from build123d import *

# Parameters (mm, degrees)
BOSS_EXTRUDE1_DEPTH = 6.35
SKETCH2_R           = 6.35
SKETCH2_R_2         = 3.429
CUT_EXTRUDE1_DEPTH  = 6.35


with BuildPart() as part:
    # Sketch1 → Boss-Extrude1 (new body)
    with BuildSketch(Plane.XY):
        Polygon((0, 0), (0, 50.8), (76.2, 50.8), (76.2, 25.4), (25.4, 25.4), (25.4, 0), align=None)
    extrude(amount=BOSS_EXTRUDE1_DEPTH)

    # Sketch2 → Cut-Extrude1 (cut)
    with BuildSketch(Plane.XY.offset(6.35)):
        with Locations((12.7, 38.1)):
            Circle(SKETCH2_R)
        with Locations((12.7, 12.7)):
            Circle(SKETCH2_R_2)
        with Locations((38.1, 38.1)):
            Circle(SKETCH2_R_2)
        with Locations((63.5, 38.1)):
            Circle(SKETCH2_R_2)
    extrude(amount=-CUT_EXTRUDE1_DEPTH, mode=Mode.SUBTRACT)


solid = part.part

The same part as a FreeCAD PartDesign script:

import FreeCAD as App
import Part
import Sketcher
Q = App.Units.Quantity


def add_polygon(sketch, points):
    """Adds a closed chain of lines whose ends are joined by coincident constraints."""
    first, n = sketch.GeometryCount, len(points)
    for a, b in zip(points, points[1:] + points[:1]):
        sketch.addGeometry(Part.LineSegment(App.Vector(*a, 0), App.Vector(*b, 0)), False)
    for i in range(n):
        sketch.addConstraint(Sketcher.Constraint("Coincident", first + i, 2, first + (i + 1) % n, 1))

doc = App.newDocument("Part")
body = doc.addObject("PartDesign::Body", "Body")

sketch1 = body.newObject("Sketcher::SketchObject", "Sketch")
sketch1.AttachmentSupport = (doc.getObject("XY_Plane"), [""])
sketch1.MapMode = "FlatFace"
add_polygon(sketch1, [(0, 51), (0, 0), (25, 0), (25, 25), (76, 25), (76, 51)])
sketch1.addConstraint([
    Sketcher.Constraint("Vertical", 0),
    Sketcher.Constraint("Horizontal", 1),
    Sketcher.Constraint("Vertical", 2),
    Sketcher.Constraint("Horizontal", 3),
    Sketcher.Constraint("Vertical", 4),
    Sketcher.Constraint("Horizontal", 5),
    Sketcher.Constraint("Coincident", 0, 2, -1, 1),
    Sketcher.Constraint("Equal", 3, 0),
    Sketcher.Constraint("Equal", 1, 2),
    Sketcher.Constraint("Equal", 2, 4),
    Sketcher.Constraint("DistanceX", 1, 1, 1, 2, Q("1 in")),
])
pad1 = body.newObject("PartDesign::Pad", "Pad")
pad1.Profile = sketch1
pad1.Length = Q("0.25 in")

sketch2 = body.newObject("Sketcher::SketchObject", "Sketch001")
sketch2.AttachmentSupport = (doc.getObject("XY_Plane"), [""])
sketch2.MapMode = "FlatFace"
sketch2.AttachmentOffset = App.Placement(App.Vector(0, 0, 0.25 * 25.4), App.Rotation())
sketch2.addGeometry([
    Part.Circle(App.Vector(12.7, 38.1, 0), App.Vector(0, 0, 1), 6.3),
    Part.Circle(App.Vector(12.7, 12.7, 0), App.Vector(0, 0, 1), 3.4),
    Part.Circle(App.Vector(38.1, 38.1, 0), App.Vector(0, 0, 1), 3.4),
    Part.Circle(App.Vector(63.5, 38.1, 0), App.Vector(0, 0, 1), 3.4),
], False)
sketch2.addConstraint([
    Sketcher.Constraint("Equal", 1, 2),
    Sketcher.Constraint("Equal", 2, 3),
    Sketcher.Constraint("Horizontal", 0, 3, 2, 3),
    Sketcher.Constraint("Horizontal", 2, 3, 3, 3),
    Sketcher.Constraint("Vertical", 0, 3, 1, 3),
    Sketcher.Constraint("Diameter", 0, Q("0.5 in")),
    Sketcher.Constraint("Diameter", 1, Q("0.27 in")),
    Sketcher.Constraint("DistanceY", 1, 3, 0, 3, Q("1 in")),
    Sketcher.Constraint("DistanceX", 0, 3, 2, 3, Q("1 in")),
    Sketcher.Constraint("DistanceX", 2, 3, 3, 3, Q("1 in")),
    Sketcher.Constraint("DistanceX", -1, 1, 0, 3, Q("0.5 in")),
    Sketcher.Constraint("DistanceY", -1, 1, 0, 3, Q("1.5 in")),
])
pocket1 = body.newObject("PartDesign::Pocket", "Pocket")
pocket1.Profile = sketch2
pocket1.Length = Q("0.25 in")

doc.recompute()
